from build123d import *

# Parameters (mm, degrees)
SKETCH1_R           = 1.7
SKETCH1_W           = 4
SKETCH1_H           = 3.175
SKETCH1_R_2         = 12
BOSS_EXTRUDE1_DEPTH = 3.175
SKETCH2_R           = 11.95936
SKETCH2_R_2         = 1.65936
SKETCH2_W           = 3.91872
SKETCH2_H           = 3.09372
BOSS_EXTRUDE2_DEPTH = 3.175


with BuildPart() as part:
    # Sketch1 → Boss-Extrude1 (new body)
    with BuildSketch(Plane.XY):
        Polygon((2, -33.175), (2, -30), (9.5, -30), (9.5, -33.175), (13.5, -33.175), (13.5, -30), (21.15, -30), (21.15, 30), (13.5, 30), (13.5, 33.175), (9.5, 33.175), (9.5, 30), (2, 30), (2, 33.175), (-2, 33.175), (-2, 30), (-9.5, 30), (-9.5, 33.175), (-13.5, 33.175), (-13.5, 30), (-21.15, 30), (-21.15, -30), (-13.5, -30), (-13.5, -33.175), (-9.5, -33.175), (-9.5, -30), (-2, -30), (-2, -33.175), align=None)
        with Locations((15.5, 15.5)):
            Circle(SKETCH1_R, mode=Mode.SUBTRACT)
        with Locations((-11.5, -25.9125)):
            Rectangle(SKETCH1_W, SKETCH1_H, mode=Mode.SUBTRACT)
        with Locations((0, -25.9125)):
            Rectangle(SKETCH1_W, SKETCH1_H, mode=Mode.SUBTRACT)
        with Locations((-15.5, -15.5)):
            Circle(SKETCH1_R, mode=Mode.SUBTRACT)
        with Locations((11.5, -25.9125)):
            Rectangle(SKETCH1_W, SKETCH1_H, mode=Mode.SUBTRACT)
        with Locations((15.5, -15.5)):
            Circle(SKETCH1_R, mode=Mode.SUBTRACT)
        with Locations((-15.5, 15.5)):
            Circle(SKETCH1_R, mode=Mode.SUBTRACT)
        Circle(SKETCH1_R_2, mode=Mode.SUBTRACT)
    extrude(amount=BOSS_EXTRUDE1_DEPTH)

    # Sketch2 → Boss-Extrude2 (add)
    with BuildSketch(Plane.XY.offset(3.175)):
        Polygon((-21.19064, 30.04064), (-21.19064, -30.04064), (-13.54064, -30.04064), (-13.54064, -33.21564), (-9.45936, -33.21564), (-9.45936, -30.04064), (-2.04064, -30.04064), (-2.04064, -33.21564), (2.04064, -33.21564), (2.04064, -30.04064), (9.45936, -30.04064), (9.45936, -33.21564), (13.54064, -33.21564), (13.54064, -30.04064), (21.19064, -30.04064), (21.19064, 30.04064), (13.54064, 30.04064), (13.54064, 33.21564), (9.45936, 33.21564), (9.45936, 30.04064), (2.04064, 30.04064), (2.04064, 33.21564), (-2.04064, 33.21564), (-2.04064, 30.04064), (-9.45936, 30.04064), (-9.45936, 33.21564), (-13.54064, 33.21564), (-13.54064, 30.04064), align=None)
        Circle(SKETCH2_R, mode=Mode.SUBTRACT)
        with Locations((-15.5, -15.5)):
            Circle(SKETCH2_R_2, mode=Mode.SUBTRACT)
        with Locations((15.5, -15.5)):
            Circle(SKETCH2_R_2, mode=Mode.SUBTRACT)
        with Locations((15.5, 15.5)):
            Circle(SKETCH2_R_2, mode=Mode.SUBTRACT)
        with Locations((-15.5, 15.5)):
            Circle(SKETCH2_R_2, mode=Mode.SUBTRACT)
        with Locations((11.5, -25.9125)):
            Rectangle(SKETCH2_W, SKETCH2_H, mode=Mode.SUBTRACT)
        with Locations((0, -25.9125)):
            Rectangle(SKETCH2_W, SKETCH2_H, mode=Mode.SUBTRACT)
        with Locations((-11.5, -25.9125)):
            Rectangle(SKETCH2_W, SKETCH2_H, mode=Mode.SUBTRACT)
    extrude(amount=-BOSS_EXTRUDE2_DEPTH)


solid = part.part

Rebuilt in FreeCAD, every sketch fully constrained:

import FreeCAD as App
import Part
import Sketcher

V = App.Vector

doc = App.newDocument("Part")
body = doc.addObject("PartDesign::Body", "Body")

# Sketch on XY plane
sketch1 = doc.addObject("Sketcher::SketchObject", "Sketch")
body.addObject(sketch1)
sketch1.AttachmentSupport = (doc.XY_Plane, [""])
sketch1.MapMode = "FlatFace"
sketch1.addGeometry([
    Part.LineSegment(V(2, -33.2, 0), V(2, -30, 0)),  # 0
    Part.LineSegment(V(2, -30, 0), V(9.5, -30, 0)),  # 1
    Part.LineSegment(V(9.5, -30, 0), V(9.5, -33.2, 0)),  # 2
    Part.LineSegment(V(9.5, -33.2, 0), V(13.5, -33.2, 0)),  # 3
    Part.LineSegment(V(13.5, -33.2, 0), V(13.5, -30, 0)),  # 4
    Part.LineSegment(V(13.5, -30, 0), V(21.1, -30, 0)),  # 5
    Part.LineSegment(V(21.1, -30, 0), V(21.1, 30, 0)),  # 6
    Part.LineSegment(V(21.1, 30, 0), V(13.5, 30, 0)),  # 7
    Part.LineSegment(V(13.5, 30, 0), V(13.5, 33.2, 0)),  # 8
    Part.LineSegment(V(13.5, 33.2, 0), V(9.5, 33.2, 0)),  # 9
    Part.LineSegment(V(9.5, 33.2, 0), V(9.5, 30, 0)),  # 10
    Part.LineSegment(V(9.5, 30, 0), V(2, 30, 0)),  # 11
    Part.LineSegment(V(2, 30, 0), V(2, 33.2, 0)),  # 12
    Part.LineSegment(V(2, 33.2, 0), V(-2, 33.2, 0)),  # 13
    Part.LineSegment(V(-2, 33.2, 0), V(-2, 30, 0)),  # 14
    Part.LineSegment(V(-2, 30, 0), V(-9.5, 30, 0)),  # 15
    Part.LineSegment(V(-9.5, 30, 0), V(-9.5, 33.2, 0)),  # 16
    Part.LineSegment(V(-9.5, 33.2, 0), V(-13.5, 33.2, 0)),  # 17
    Part.LineSegment(V(-13.5, 33.2, 0), V(-13.5, 30, 0)),  # 18
    Part.LineSegment(V(-13.5, 30, 0), V(-21.1, 30, 0)),  # 19
    Part.LineSegment(V(-21.1, 30, 0), V(-21.1, -30, 0)),  # 20
    Part.LineSegment(V(-21.1, -30, 0), V(-13.5, -30, 0)),  # 21
    Part.LineSegment(V(-13.5, -30, 0), V(-13.5, -33.2, 0)),  # 22
    Part.LineSegment(V(-13.5, -33.2, 0), V(-9.5, -33.2, 0)),  # 23
    Part.LineSegment(V(-9.5, -33.2, 0), V(-9.5, -30, 0)),  # 24
    Part.LineSegment(V(-9.5, -30, 0), V(-2, -30, 0)),  # 25
    Part.LineSegment(V(-2, -30, 0), V(-2, -33.2, 0)),  # 26
    Part.LineSegment(V(-2, -33.2, 0), V(2, -33.2, 0)),  # 27
    Part.LineSegment(V(-9.5, -27.5, 0), V(-13.5, -27.5, 0)),  # 28
    Part.LineSegment(V(-13.5, -27.5, 0), V(-13.5, -24.3, 0)),  # 29
    Part.LineSegment(V(-13.5, -24.3, 0), V(-9.5, -24.3, 0)),  # 30
    Part.LineSegment(V(-9.5, -24.3, 0), V(-9.5, -27.5, 0)),  # 31
    Part.Circle(V(-15.5, -15.5, 0), V(0, 0, 1), 1.7),  # 32
    Part.LineSegment(V(2, -27.5, 0), V(-2, -27.5, 0)),  # 33
    Part.LineSegment(V(-2, -27.5, 0), V(-2, -24.3, 0)),  # 34
    Part.LineSegment(V(-2, -24.3, 0), V(2, -24.3, 0)),  # 35
    Part.LineSegment(V(2, -24.3, 0), V(2, -27.5, 0)),  # 36
    Part.LineSegment(V(13.5, -27.5, 0), V(9.5, -27.5, 0)),  # 37
    Part.LineSegment(V(9.5, -27.5, 0), V(9.5, -24.3, 0)),  # 38
    Part.LineSegment(V(9.5, -24.3, 0), V(13.5, -24.3, 0)),  # 39
    Part.LineSegment(V(13.5, -24.3, 0), V(13.5, -27.5, 0)),  # 40
    Part.Circle(V(15.5, -15.5, 0), V(0, 0, 1), 1.7),  # 41
    Part.Circle(V(-15.5, 15.5, 0), V(0, 0, 1), 1.7),  # 42
    Part.Circle(V(0, 0, 0), V(0, 0, 1), 12),  # 43
    Part.Circle(V(15.5, 15.5, 0), V(0, 0, 1), 1.7),  # 44
], False)
sketch1.addConstraint([
    Sketcher.Constraint("Coincident", 0, 2, 1, 1),
    Sketcher.Constraint("Coincident", 1, 2, 2, 1),
    Sketcher.Constraint("Coincident", 2, 2, 3, 1),
    Sketcher.Constraint("Coincident", 3, 2, 4, 1),
    Sketcher.Constraint("Coincident", 4, 2, 5, 1),
    Sketcher.Constraint("Coincident", 5, 2, 6, 1),
    Sketcher.Constraint("Coincident", 6, 2, 7, 1),
    Sketcher.Constraint("Coincident", 7, 2, 8, 1),
    Sketcher.Constraint("Coincident", 8, 2, 9, 1),
    Sketcher.Constraint("Coincident", 9, 2, 10, 1),
    Sketcher.Constraint("Coincident", 10, 2, 11, 1),
    Sketcher.Constraint("Coincident", 11, 2, 12, 1),
    Sketcher.Constraint("Coincident", 12, 2, 13, 1),
    Sketcher.Constraint("Coincident", 13, 2, 14, 1),
    Sketcher.Constraint("Coincident", 14, 2, 15, 1),
    Sketcher.Constraint("Coincident", 15, 2, 16, 1),
    Sketcher.Constraint("Coincident", 16, 2, 17, 1),
    Sketcher.Constraint("Coincident", 17, 2, 18, 1),
    Sketcher.Constraint("Coincident", 18, 2, 19, 1),
    Sketcher.Constraint("Coincident", 19, 2, 20, 1),
    Sketcher.Constraint("Coincident", 20, 2, 21, 1),
    Sketcher.Constraint("Coincident", 21, 2, 22, 1),
    Sketcher.Constraint("Coincident", 22, 2, 23, 1),
    Sketcher.Constraint("Coincident", 23, 2, 24, 1),
    Sketcher.Constraint("Coincident", 24, 2, 25, 1),
    Sketcher.Constraint("Coincident", 25, 2, 26, 1),
    Sketcher.Constraint("Coincident", 26, 2, 27, 1),
    Sketcher.Constraint("Coincident", 27, 2, 0, 1),
    Sketcher.Constraint("Coincident", 28, 2, 29, 1),
    Sketcher.Constraint("Coincident", 29, 2, 30, 1),
    Sketcher.Constraint("Coincident", 30, 2, 31, 1),
    Sketcher.Constraint("Coincident", 31, 2, 28, 1),
    Sketcher.Constraint("Coincident", 33, 2, 34, 1),
    Sketcher.Constraint("Coincident", 34, 2, 35, 1),
    Sketcher.Constraint("Coincident", 35, 2, 36, 1),
    Sketcher.Constraint("Coincident", 36, 2, 33, 1),
    Sketcher.Constraint("Coincident", 37, 2, 38, 1),
    Sketcher.Constraint("Coincident", 38, 2, 39, 1),
    Sketcher.Constraint("Coincident", 39, 2, 40, 1),
    Sketcher.Constraint("Coincident", 40, 2, 37, 1),
    Sketcher.Constraint("Vertical", 0),
    Sketcher.Constraint("Horizontal", 1),
    Sketcher.Constraint("Vertical", 2),
    Sketcher.Constraint("Horizontal", 3),
    Sketcher.Constraint("Vertical", 4),
    Sketcher.Constraint("Horizontal", 5),
    Sketcher.Constraint("Vertical", 6),
    Sketcher.Constraint("Horizontal", 7),
    Sketcher.Constraint("Vertical", 8),
    Sketcher.Constraint("Horizontal", 9),
    Sketcher.Constraint("Vertical", 10),
    Sketcher.Constraint("Horizontal", 11),
    Sketcher.Constraint("Vertical", 12),
    Sketcher.Constraint("Horizontal", 13),
    Sketcher.Constraint("Vertical", 14),
    Sketcher.Constraint("Horizontal", 15),
    Sketcher.Constraint("Vertical", 16),
    Sketcher.Constraint("Horizontal", 17),
    Sketcher.Constraint("Vertical", 18),
    Sketcher.Constraint("Horizontal", 19),
    Sketcher.Constraint("Vertical", 20),
    Sketcher.Constraint("Horizontal", 21),
    Sketcher.Constraint("Vertical", 22),
    Sketcher.Constraint("Horizontal", 23),
    Sketcher.Constraint("Vertical", 24),
    Sketcher.Constraint("Horizontal", 25),
    Sketcher.Constraint("Vertical", 26),
    Sketcher.Constraint("Horizontal", 27),
    Sketcher.Constraint("Horizontal", 28),
    Sketcher.Constraint("Vertical", 29),
    Sketcher.Constraint("Horizontal", 30),
    Sketcher.Constraint("Vertical", 31),
    Sketcher.Constraint("Horizontal", 33),
    Sketcher.Constraint("Vertical", 34),
    Sketcher.Constraint("Horizontal", 35),
    Sketcher.Constraint("Vertical", 36),
    Sketcher.Constraint("Horizontal", 37),
    Sketcher.Constraint("Vertical", 38),
    Sketcher.Constraint("Horizontal", 39),
    Sketcher.Constraint("Vertical", 40),
    Sketcher.Constraint("Coincident", 43, 3, -1, 1),
    Sketcher.Constraint("Equal", 32, 41),
    Sketcher.Constraint("Equal", 41, 42),
    Sketcher.Constraint("Equal", 42, 44),
    Sketcher.Constraint("Symmetric", 41, 3, 42, 3, -1, 1),
    Sketcher.Constraint("Symmetric", 32, 3, 44, 3, -1, 1),
    Sketcher.Constraint("Symmetric", 0, 2, 14, 2, -1, 1),
    Sketcher.Constraint("Symmetric", 2, 2, 16, 2, -1, 1),
    Sketcher.Constraint("Symmetric", 4, 2, 18, 2, -1, 1),
    Sketcher.Constraint("Symmetric", 6, 2, 20, 2, -1, 1),
    Sketcher.Constraint("Symmetric", 8, 2, 22, 2, -1, 1),
    Sketcher.Constraint("Symmetric", 10, 2, 24, 2, -1, 1),
    Sketcher.Constraint("Symmetric", 12, 2, 26, 2, -1, 1),
    Sketcher.Constraint("Symmetric", 32, 3, 41, 3, -2),
    Sketcher.Constraint("Symmetric", 11, 2, 14, 2, -2),
    Sketcher.Constraint("Symmetric", 9, 2, 16, 2, -2),
    Sketcher.Constraint("Symmetric", 7, 2, 18, 2, -2),
    Sketcher.Constraint("Symmetric", 31, 2, 37, 2, -2),
    Sketcher.Constraint("Symmetric", 29, 2, 39, 2, -2),
    Sketcher.Constraint("Horizontal", 1, 2, 4, 2),
    Sketcher.Constraint("Horizontal", 9, 2, 12, 2),
    Sketcher.Constraint("Horizontal", 31, 2, 33, 2),
    Sketcher.Constraint("Horizontal", 30, 2, 34, 2),
    Sketcher.Constraint("Vertical", 22, 2, 28, 2),
    Sketcher.Constraint("Vertical", 24, 2, 30, 2),
    Sketcher.Constraint("Vertical", 26, 2, 33, 2),
    Sketcher.Constraint("Vertical", 27, 2, 35, 2),
    Sketcher.Constraint("Equal", 9, 13),
    Sketcher.Constraint("Equal", 26, 29),
    Sketcher.Constraint("Diameter", 43, 24.0),
    Sketcher.Constraint("Diameter", 32, 3.4),
    Sketcher.Constraint("DistanceX", 3, 1, 3, 2, 4.0),
    Sketcher.Constraint("DistanceY", 6, 1, 6, 2, 60.0),
    Sketcher.Constraint("DistanceX", 1, 1, 1, 2, 7.5),
    Sketcher.Constraint("DistanceX", 32, 3, 41, 3, 31.0),
    Sketcher.Constraint("DistanceY", 32, 3, 42, 3, 31.0),
    Sketcher.Constraint("DistanceX", 5, 1, 5, 2, 7.65),
    Sketcher.Constraint("DistanceY", 28, 2, -1, 1, 27.5),
    Sketcher.Constraint("DistanceY", 0, 1, 0, 2, 3.175),
])
pad1 = doc.addObject("PartDesign::Pad", "Pad")
body.addObject(pad1)
pad1.Profile = sketch1
pad1.Length = 3.175

# Sketch on XY plane
sketch2 = doc.addObject("Sketcher::SketchObject", "Sketch001")
body.addObject(sketch2)
sketch2.AttachmentSupport = (doc.XY_Plane, [""])
sketch2.MapMode = "FlatFace"
sketch2.AttachmentOffset = App.Placement(V(0, 0, 3.175), App.Rotation())
sketch2.addGeometry([
    Part.LineSegment(V(-21.2, 30, 0), V(-21.2, -30, 0)),  # 0
    Part.LineSegment(V(-21.2, -30, 0), V(-13.5, -30, 0)),  # 1
    Part.LineSegment(V(-13.5, -30, 0), V(-13.5, -33.2, 0)),  # 2
    Part.LineSegment(V(-13.5, -33.2, 0), V(-9.5, -33.2, 0)),  # 3
    Part.LineSegment(V(-9.5, -33.2, 0), V(-9.5, -30, 0)),  # 4
    Part.LineSegment(V(-9.5, -30, 0), V(-2, -30, 0)),  # 5
    Part.LineSegment(V(-2, -30, 0), V(-2, -33.2, 0)),  # 6
    Part.LineSegment(V(-2, -33.2, 0), V(2, -33.2, 0)),  # 7
    Part.LineSegment(V(2, -33.2, 0), V(2, -30, 0)),  # 8
    Part.LineSegment(V(2, -30, 0), V(9.5, -30, 0)),  # 9
    Part.LineSegment(V(9.5, -30, 0), V(9.5, -33.2, 0)),  # 10
    Part.LineSegment(V(9.5, -33.2, 0), V(13.5, -33.2, 0)),  # 11
    Part.LineSegment(V(13.5, -33.2, 0), V(13.5, -30, 0)),  # 12
    Part.LineSegment(V(13.5, -30, 0), V(21.2, -30, 0)),  # 13
    Part.LineSegment(V(21.2, -30, 0), V(21.2, 30, 0)),  # 14
    Part.LineSegment(V(21.2, 30, 0), V(13.5, 30, 0)),  # 15
    Part.LineSegment(V(13.5, 30, 0), V(13.5, 33.2, 0)),  # 16
    Part.LineSegment(V(13.5, 33.2, 0), V(9.5, 33.2, 0)),  # 17
    Part.LineSegment(V(9.5, 33.2, 0), V(9.5, 30, 0)),  # 18
    Part.LineSegment(V(9.5, 30, 0), V(2, 30, 0)),  # 19
    Part.LineSegment(V(2, 30, 0), V(2, 33.2, 0)),  # 20
    Part.LineSegment(V(2, 33.2, 0), V(-2, 33.2, 0)),  # 21
    Part.LineSegment(V(-2, 33.2, 0), V(-2, 30, 0)),  # 22
    Part.LineSegment(V(-2, 30, 0), V(-9.5, 30, 0)),  # 23
    Part.LineSegment(V(-9.5, 30, 0), V(-9.5, 33.2, 0)),  # 24
    Part.LineSegment(V(-9.5, 33.2, 0), V(-13.5, 33.2, 0)),  # 25
    Part.LineSegment(V(-13.5, 33.2, 0), V(-13.5, 30, 0)),  # 26
    Part.LineSegment(V(-13.5, 30, 0), V(-21.2, 30, 0)),  # 27
    Part.LineSegment(V(-9.5, -27.5, 0), V(-13.5, -27.5, 0)),  # 28
    Part.LineSegment(V(-13.5, -27.5, 0), V(-13.5, -24.4, 0)),  # 29
    Part.LineSegment(V(-13.5, -24.4, 0), V(-9.5, -24.4, 0)),  # 30
    Part.LineSegment(V(-9.5, -24.4, 0), V(-9.5, -27.5, 0)),  # 31
    Part.Circle(V(-15.5, -15.5, 0), V(0, 0, 1), 1.7),  # 32
    Part.LineSegment(V(2, -27.5, 0), V(-2, -27.5, 0)),  # 33
    Part.LineSegment(V(-2, -27.5, 0), V(-2, -24.4, 0)),  # 34
    Part.LineSegment(V(-2, -24.4, 0), V(2, -24.4, 0)),  # 35
    Part.LineSegment(V(2, -24.4, 0), V(2, -27.5, 0)),  # 36
    Part.LineSegment(V(13.5, -27.5, 0), V(9.5, -27.5, 0)),  # 37
    Part.LineSegment(V(9.5, -27.5, 0), V(9.5, -24.4, 0)),  # 38
    Part.LineSegment(V(9.5, -24.4, 0), V(13.5, -24.4, 0)),  # 39
    Part.LineSegment(V(13.5, -24.4, 0), V(13.5, -27.5, 0)),  # 40
    Part.Circle(V(15.5, -15.5, 0), V(0, 0, 1), 1.7),  # 41
    Part.Circle(V(-15.5, 15.5, 0), V(0, 0, 1), 1.7),  # 42
    Part.Circle(V(0, 0, 0), V(0, 0, 1), 12),  # 43
    Part.Circle(V(15.5, 15.5, 0), V(0, 0, 1), 1.7),  # 44
], False)
sketch2.addConstraint([
    Sketcher.Constraint("Coincident", 0, 2, 1, 1),
    Sketcher.Constraint("Coincident", 1, 2, 2, 1),
    Sketcher.Constraint("Coincident", 2, 2, 3, 1),
    Sketcher.Constraint("Coincident", 3, 2, 4, 1),
    Sketcher.Constraint("Coincident", 4, 2, 5, 1),
    Sketcher.Constraint("Coincident", 5, 2, 6, 1),
    Sketcher.Constraint("Coincident", 6, 2, 7, 1),
    Sketcher.Constraint("Coincident", 7, 2, 8, 1),
    Sketcher.Constraint("Coincident", 8, 2, 9, 1),
    Sketcher.Constraint("Coincident", 9, 2, 10, 1),
    Sketcher.Constraint("Coincident", 10, 2, 11, 1),
    Sketcher.Constraint("Coincident", 11, 2, 12, 1),
    Sketcher.Constraint("Coincident", 12, 2, 13, 1),
    Sketcher.Constraint("Coincident", 13, 2, 14, 1),
    Sketcher.Constraint("Coincident", 14, 2, 15, 1),
    Sketcher.Constraint("Coincident", 15, 2, 16, 1),
    Sketcher.Constraint("Coincident", 16, 2, 17, 1),
    Sketcher.Constraint("Coincident", 17, 2, 18, 1),
    Sketcher.Constraint("Coincident", 18, 2, 19, 1),
    Sketcher.Constraint("Coincident", 19, 2, 20, 1),
    Sketcher.Constraint("Coincident", 20, 2, 21, 1),
    Sketcher.Constraint("Coincident", 21, 2, 22, 1),
    Sketcher.Constraint("Coincident", 22, 2, 23, 1),
    Sketcher.Constraint("Coincident", 23, 2, 24, 1),
    Sketcher.Constraint("Coincident", 24, 2, 25, 1),
    Sketcher.Constraint("Coincident", 25, 2, 26, 1),
    Sketcher.Constraint("Coincident", 26, 2, 27, 1),
    Sketcher.Constraint("Coincident", 27, 2, 0, 1),
    Sketcher.Constraint("Coincident", 28, 2, 29, 1),
    Sketcher.Constraint("Coincident", 29, 2, 30, 1),
    Sketcher.Constraint("Coincident", 30, 2, 31, 1),
    Sketcher.Constraint("Coincident", 31, 2, 28, 1),
    Sketcher.Constraint("Coincident", 33, 2, 34, 1),
    Sketcher.Constraint("Coincident", 34, 2, 35, 1),
    Sketcher.Constraint("Coincident", 35, 2, 36, 1),
    Sketcher.Constraint("Coincident", 36, 2, 33, 1),
    Sketcher.Constraint("Coincident", 37, 2, 38, 1),
    Sketcher.Constraint("Coincident", 38, 2, 39, 1),
    Sketcher.Constraint("Coincident", 39, 2, 40, 1),
    Sketcher.Constraint("Coincident", 40, 2, 37, 1),
    Sketcher.Constraint("Vertical", 0),
    Sketcher.Constraint("Horizontal", 1),
    Sketcher.Constraint("Vertical", 2),
    Sketcher.Constraint("Horizontal", 3),
    Sketcher.Constraint("Vertical", 4),
    Sketcher.Constraint("Horizontal", 5),
    Sketcher.Constraint("Vertical", 6),
    Sketcher.Constraint("Horizontal", 7),
    Sketcher.Constraint("Vertical", 8),
    Sketcher.Constraint("Horizontal", 9),
    Sketcher.Constraint("Vertical", 10),
    Sketcher.Constraint("Horizontal", 11),
    Sketcher.Constraint("Vertical", 12),
    Sketcher.Constraint("Horizontal", 13),
    Sketcher.Constraint("Vertical", 14),
    Sketcher.Constraint("Horizontal", 15),
    Sketcher.Constraint("Vertical", 16),
    Sketcher.Constraint("Horizontal", 17),
    Sketcher.Constraint("Vertical", 18),
    Sketcher.Constraint("Horizontal", 19),
    Sketcher.Constraint("Vertical", 20),
    Sketcher.Constraint("Horizontal", 21),
    Sketcher.Constraint("Vertical", 22),
    Sketcher.Constraint("Horizontal", 23),
    Sketcher.Constraint("Vertical", 24),
    Sketcher.Constraint("Horizontal", 25),
    Sketcher.Constraint("Vertical", 26),
    Sketcher.Constraint("Horizontal", 27),
    Sketcher.Constraint("Horizontal", 28),
    Sketcher.Constraint("Vertical", 29),
    Sketcher.Constraint("Horizontal", 30),
    Sketcher.Constraint("Vertical", 31),
    Sketcher.Constraint("Horizontal", 33),
    Sketcher.Constraint("Vertical", 34),
    Sketcher.Constraint("Horizontal", 35),
    Sketcher.Constraint("Vertical", 36),
    Sketcher.Constraint("Horizontal", 37),
    Sketcher.Constraint("Vertical", 38),
    Sketcher.Constraint("Horizontal", 39),
    Sketcher.Constraint("Vertical", 40),
    Sketcher.Constraint("Coincident", 43, 3, -1, 1),
    Sketcher.Constraint("Equal", 32, 41),
    Sketcher.Constraint("Equal", 41, 42),
    Sketcher.Constraint("Equal", 42, 44),
    Sketcher.Constraint("Symmetric", 41, 3, 42, 3, -1, 1),
    Sketcher.Constraint("Symmetric", 32, 3, 44, 3, -1, 1),
    Sketcher.Constraint("Symmetric", 0, 2, 14, 2, -1, 1),
    Sketcher.Constraint("Symmetric", 2, 2, 16, 2, -1, 1),
    Sketcher.Constraint("Symmetric", 4, 2, 18, 2, -1, 1),
    Sketcher.Constraint("Symmetric", 6, 2, 20, 2, -1, 1),
    Sketcher.Constraint("Symmetric", 8, 2, 22, 2, -1, 1),
    Sketcher.Constraint("Symmetric", 10, 2, 24, 2, -1, 1),
    Sketcher.Constraint("Symmetric", 12, 2, 26, 2, -1, 1),
    Sketcher.Constraint("Symmetric", 32, 3, 41, 3, -2),
    Sketcher.Constraint("Symmetric", 5, 2, 8, 2, -2),
    Sketcher.Constraint("Symmetric", 3, 2, 10, 2, -2),
    Sketcher.Constraint("Symmetric", 1, 2, 12, 2, -2),
    Sketcher.Constraint("Symmetric", 31, 2, 37, 2, -2),
    Sketcher.Constraint("Symmetric", 29, 2, 39, 2, -2),
    Sketcher.Constraint("Horizontal", 1, 2, 4, 2),
    Sketcher.Constraint("Horizontal", 3, 2, 6, 2),
    Sketcher.Constraint("Horizontal", 31, 2, 33, 2),
    Sketcher.Constraint("Horizontal", 30, 2, 34, 2),
    Sketcher.Constraint("Equal", 3, 7),
    Sketcher.Constraint("Equal", 30, 33),
    Sketcher.Constraint("DistanceX", 32, 3, 41, 3, 31.0),
    Sketcher.Constraint("DistanceY", 32, 3, 42, 3, 31.0),
    Sketcher.Constraint("DistanceX", 28, 2, 4, 2, 4.0),
    Sketcher.Constraint("DistanceX", 1, 2, 30, 2, 4.0),
    Sketcher.Constraint("DistanceX", 33, 2, 8, 2, 4.0),
    Sketcher.Constraint("DistanceX", 1, 1, 1, 2, 7.65),
    Sketcher.Constraint("DistanceX", 1, 2, 5, 2, 11.5),
    Sketcher.Constraint("Diameter", 32, 3.31872),
    Sketcher.Constraint("Diameter", 43, 23.91872),
    Sketcher.Constraint("DistanceY", 2, 2, 2, 1, 3.175),
    Sketcher.Constraint("DistanceY", 2, 2, 29, 2, 8.85),
    Sketcher.Constraint("DistanceX", 3, 1, 3, 2, 4.08128),
    Sketcher.Constraint("DistanceY", 0, 2, 0, 1, 60.08128),
    Sketcher.Constraint("DistanceY", 29, 1, 29, 2, 3.09372),
])
pad2 = doc.addObject("PartDesign::Pad", "Pad001")
body.addObject(pad2)
pad2.Profile = sketch2
pad2.Length = 3.175
pad2.Reversed = True

doc.recompute()
